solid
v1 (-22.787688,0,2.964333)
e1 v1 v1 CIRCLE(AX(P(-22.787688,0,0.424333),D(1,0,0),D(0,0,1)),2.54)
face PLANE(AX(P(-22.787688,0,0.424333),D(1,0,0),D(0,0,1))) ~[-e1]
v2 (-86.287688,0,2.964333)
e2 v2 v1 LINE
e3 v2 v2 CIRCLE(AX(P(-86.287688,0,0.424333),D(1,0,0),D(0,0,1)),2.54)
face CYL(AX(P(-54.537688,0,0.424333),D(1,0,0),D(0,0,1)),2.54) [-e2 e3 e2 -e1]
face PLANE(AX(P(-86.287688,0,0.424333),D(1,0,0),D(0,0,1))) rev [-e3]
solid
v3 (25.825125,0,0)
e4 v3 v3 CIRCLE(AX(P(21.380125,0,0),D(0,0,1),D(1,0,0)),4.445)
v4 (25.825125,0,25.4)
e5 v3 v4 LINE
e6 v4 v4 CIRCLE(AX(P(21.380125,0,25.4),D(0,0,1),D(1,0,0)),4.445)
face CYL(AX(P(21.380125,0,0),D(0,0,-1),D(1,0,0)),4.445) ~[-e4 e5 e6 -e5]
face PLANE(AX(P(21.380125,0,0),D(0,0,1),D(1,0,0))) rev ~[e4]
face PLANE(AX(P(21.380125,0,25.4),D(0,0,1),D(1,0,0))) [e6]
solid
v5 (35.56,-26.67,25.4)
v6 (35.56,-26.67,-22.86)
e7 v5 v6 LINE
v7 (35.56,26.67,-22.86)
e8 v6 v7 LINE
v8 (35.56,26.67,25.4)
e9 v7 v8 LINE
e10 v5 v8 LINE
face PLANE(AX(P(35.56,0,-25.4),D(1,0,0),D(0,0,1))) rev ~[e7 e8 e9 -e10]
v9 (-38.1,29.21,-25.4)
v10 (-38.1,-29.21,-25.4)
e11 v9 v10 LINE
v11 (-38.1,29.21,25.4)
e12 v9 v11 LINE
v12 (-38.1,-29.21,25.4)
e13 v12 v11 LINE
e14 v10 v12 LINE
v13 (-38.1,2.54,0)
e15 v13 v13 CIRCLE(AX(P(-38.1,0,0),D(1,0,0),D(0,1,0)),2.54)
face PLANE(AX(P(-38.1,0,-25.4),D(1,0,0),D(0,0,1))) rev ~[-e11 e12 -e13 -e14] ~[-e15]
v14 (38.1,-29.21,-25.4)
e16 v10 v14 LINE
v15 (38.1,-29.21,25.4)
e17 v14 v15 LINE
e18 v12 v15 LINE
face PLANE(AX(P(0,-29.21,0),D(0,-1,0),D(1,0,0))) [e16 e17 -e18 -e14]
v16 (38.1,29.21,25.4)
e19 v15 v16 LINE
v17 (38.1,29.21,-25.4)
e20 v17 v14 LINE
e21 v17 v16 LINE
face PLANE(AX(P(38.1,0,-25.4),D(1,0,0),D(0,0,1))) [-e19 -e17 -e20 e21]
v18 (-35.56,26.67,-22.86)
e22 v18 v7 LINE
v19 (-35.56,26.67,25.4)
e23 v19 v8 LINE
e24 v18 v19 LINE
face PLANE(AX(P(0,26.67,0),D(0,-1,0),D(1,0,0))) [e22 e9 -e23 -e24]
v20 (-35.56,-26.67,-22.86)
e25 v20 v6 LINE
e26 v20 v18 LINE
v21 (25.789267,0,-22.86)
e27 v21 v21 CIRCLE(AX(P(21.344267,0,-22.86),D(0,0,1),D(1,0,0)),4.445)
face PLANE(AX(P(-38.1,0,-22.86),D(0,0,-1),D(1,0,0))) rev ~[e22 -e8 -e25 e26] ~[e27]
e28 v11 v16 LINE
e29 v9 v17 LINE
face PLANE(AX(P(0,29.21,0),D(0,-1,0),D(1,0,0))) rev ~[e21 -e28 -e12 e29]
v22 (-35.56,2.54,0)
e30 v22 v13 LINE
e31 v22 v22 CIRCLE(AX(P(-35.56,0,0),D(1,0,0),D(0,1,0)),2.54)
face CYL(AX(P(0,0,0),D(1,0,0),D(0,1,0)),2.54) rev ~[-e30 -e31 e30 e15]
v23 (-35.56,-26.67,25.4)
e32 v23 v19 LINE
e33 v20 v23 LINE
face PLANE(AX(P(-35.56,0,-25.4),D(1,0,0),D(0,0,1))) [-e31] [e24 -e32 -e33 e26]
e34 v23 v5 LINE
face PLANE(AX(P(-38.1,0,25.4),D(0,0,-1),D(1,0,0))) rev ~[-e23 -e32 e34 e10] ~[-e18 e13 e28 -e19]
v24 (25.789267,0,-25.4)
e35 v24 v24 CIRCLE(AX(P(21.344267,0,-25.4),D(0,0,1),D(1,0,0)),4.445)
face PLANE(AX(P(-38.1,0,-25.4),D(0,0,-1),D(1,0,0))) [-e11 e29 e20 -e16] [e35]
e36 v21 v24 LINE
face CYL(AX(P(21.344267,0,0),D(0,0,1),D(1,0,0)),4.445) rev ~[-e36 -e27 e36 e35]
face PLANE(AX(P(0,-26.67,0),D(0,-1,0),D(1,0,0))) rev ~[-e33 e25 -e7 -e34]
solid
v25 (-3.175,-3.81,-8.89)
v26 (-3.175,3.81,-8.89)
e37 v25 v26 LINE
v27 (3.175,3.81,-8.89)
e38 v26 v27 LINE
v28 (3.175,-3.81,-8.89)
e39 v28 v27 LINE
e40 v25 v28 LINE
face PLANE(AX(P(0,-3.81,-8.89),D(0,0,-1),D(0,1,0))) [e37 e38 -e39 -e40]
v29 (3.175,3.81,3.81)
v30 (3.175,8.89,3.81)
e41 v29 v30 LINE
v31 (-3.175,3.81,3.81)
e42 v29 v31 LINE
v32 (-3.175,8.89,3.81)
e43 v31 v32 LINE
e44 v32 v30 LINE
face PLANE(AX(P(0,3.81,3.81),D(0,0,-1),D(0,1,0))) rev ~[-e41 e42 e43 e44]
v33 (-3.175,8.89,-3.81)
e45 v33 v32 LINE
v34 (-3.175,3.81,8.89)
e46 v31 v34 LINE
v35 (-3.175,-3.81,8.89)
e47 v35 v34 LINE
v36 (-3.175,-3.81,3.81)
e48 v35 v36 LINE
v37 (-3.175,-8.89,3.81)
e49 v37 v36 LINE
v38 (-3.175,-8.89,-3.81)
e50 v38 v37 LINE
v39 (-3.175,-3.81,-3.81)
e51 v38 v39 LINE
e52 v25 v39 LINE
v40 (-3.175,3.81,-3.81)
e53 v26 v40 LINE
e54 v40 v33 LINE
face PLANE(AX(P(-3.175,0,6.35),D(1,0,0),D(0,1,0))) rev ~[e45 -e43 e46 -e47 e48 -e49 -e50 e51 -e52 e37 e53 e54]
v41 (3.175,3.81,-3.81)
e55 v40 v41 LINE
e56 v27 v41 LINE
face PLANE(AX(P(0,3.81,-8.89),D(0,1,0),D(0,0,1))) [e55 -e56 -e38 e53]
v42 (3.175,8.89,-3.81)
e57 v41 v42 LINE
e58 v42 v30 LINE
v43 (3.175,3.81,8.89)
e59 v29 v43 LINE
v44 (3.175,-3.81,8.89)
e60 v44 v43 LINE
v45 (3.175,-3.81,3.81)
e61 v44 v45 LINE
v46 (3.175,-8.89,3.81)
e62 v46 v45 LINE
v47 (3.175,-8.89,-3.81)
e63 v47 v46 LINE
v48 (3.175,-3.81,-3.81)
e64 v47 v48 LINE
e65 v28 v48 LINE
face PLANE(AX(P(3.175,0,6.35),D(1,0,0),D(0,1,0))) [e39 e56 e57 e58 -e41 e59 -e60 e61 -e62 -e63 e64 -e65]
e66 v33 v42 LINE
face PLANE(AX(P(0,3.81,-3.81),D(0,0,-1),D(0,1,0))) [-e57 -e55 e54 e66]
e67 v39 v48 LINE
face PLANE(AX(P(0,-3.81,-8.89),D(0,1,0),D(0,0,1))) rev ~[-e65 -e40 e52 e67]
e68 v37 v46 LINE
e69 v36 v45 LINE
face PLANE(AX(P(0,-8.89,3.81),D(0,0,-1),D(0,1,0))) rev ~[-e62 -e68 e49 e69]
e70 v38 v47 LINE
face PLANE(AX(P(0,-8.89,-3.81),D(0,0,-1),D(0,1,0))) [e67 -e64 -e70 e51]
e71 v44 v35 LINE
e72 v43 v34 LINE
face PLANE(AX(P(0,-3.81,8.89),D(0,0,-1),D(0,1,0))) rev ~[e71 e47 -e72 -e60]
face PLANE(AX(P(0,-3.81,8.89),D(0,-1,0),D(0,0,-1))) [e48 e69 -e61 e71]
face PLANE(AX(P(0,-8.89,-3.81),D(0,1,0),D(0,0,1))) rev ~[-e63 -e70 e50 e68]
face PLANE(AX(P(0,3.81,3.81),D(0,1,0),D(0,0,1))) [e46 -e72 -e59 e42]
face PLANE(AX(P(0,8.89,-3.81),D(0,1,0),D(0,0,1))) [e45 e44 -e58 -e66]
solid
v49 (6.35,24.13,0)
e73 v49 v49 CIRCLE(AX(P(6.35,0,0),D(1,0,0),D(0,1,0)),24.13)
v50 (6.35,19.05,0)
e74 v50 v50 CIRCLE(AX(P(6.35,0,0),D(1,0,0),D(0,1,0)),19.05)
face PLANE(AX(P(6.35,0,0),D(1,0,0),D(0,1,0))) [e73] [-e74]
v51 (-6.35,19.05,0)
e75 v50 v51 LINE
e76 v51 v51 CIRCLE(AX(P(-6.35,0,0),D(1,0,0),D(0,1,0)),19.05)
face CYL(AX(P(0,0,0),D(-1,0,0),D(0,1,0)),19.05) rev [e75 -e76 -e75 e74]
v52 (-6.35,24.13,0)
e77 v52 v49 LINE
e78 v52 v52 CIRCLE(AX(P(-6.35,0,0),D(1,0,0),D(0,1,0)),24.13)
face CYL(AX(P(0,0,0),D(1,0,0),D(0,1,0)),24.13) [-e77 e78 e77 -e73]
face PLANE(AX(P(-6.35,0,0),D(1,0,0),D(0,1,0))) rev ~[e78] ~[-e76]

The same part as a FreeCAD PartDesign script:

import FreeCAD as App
import Part
import Sketcher
Q = App.Units.Quantity


def faces_at(feature, points):
    """Names of the faces that lie closest to the given points."""
    faces = feature.Shape.Faces
    near = lambda p: min(range(len(faces)), key=lambda i: faces[i].distToShape(Part.Vertex(*p))[0])
    return sorted({f"Face{near(p) + 1}" for p in points})

doc = App.newDocument("Part")
params = doc.addObject("Spreadsheet::Sheet", "Params")
for row, (alias, value) in enumerate([
    ("sketch1_width", "3 in"),
    ("sketch1_height", "2 in"),
    ("pad1_length", "2.3 in"),
    ("thickness_wall", "0.1 in"),
    ("sketch2_diameter", "0.2 in"),
    ("sketch3_diameter", "0.35 in"),
    ("pocket2_length", "1.64 in"),
    ("sketch4_width", "2.5 in"),
    ("sketch4_height", "0.1 in"),
    ("revolution_angle", "360 deg"),
    ("sketch5_width", "0.2 in"),
    ("sketch5_width2", "0.3 in"),
    ("pad2_length", "0.25 in"),
    ("sketch6_diameter", "1.9 in"),
    ("sketch6_diameter2", "1.5 in"),
    ("pad3_length", "0.5 in"),
    ("sketch7_diameter", "0.35 in"),
    ("pad4_length", "1 in"),
], start=1):
    params.set(f"A{row}", alias)
    params.set(f"B{row}", "=" + value)
    params.setAlias(f"B{row}", alias)

body = doc.addObject("PartDesign::Body", "Body")

sketch1 = body.newObject("Sketcher::SketchObject", "Sketch")
sketch1.AttachmentSupport = (doc.getObject("XZ_Plane"), [""])
sketch1.MapMode = "FlatFace"
sketch1.addGeometry([
    Part.LineSegment(App.Vector(-38, 25, 0), App.Vector(-38, -25, 0)),
    Part.LineSegment(App.Vector(-38, -25, 0), App.Vector(38, -25, 0)),
    Part.LineSegment(App.Vector(38, -25, 0), App.Vector(38, 25, 0)),
    Part.LineSegment(App.Vector(38, 25, 0), App.Vector(-38, 25, 0)),
], False)
sketch1.addConstraint([
    Sketcher.Constraint("Coincident", 0, 2, 1, 1),
    Sketcher.Constraint("Coincident", 1, 2, 2, 1),
    Sketcher.Constraint("Coincident", 2, 2, 3, 1),
    Sketcher.Constraint("Coincident", 3, 2, 0, 1),
    Sketcher.Constraint("Vertical", 0),
    Sketcher.Constraint("Horizontal", 1),
    Sketcher.Constraint("Vertical", 2),
    Sketcher.Constraint("Horizontal", 3),
    Sketcher.Constraint("Symmetric", 0, 2, 2, 2, -1, 1),
    Sketcher.Constraint("DistanceX", 1, 1, 1, 2, Q("3 in")),
    Sketcher.Constraint("DistanceY", 0, 2, 0, 1, Q("2 in")),
])
sketch1.setExpression("Constraints[9]", "Params.sketch1_width")
sketch1.setExpression("Constraints[10]", "Params.sketch1_height")
pad1 = body.newObject("PartDesign::Pad", "Pad")
pad1.Profile = sketch1
pad1.setExpression("Length", "Params.pad1_length")
pad1.Midplane = True
doc.recompute()

thickness = body.newObject("PartDesign::Thickness", "Thickness")
thickness.Base = (pad1, faces_at(pad1, [(0, 0, 25.4)]))
thickness.setExpression("Value", "Params.thickness_wall")
thickness.Reversed = True
thickness.Join = "Arc"

sketch2 = body.newObject("Sketcher::SketchObject", "Sketch001")
sketch2.AttachmentSupport = (doc.getObject("YZ_Plane"), [""])
sketch2.MapMode = "FlatFace"
sketch2.addGeometry(Part.Circle(App.Vector(0, 0, 0), App.Vector(0, 0, 1), 2.5), False)
sketch2.addConstraint([
    Sketcher.Constraint("Coincident", 0, 3, -1, 1),
    Sketcher.Constraint("Diameter", 0, Q("0.2 in")),
])
sketch2.setExpression("Constraints[1]", "Params.sketch2_diameter")
pocket1 = body.newObject("PartDesign::Pocket", "Pocket")
pocket1.Profile = sketch2
pocket1.Type = "ThroughAll"

sketch3 = body.newObject("Sketcher::SketchObject", "Sketch002")
sketch3.AttachmentSupport = (doc.getObject("XY_Plane"), [""])
sketch3.MapMode = "FlatFace"
sketch3.addGeometry(Part.Circle(App.Vector(21.3, 0, 0), App.Vector(0, 0, 1), 4.4), False)
sketch3.addConstraint([
    Sketcher.Constraint("PointOnObject", 0, 3, -1),
    Sketcher.Constraint("Diameter", 0, Q("0.35 in")),
    Sketcher.Constraint("DistanceX", -1, 1, 0, 3, Q("21.344267 mm")),
])
sketch3.setExpression("Constraints[1]", "Params.sketch3_diameter")
pocket2 = body.newObject("PartDesign::Pocket", "Pocket001")
pocket2.Profile = sketch3
pocket2.setExpression("Length", "Params.pocket2_length")
body2 = doc.addObject("PartDesign::Body", "Body001")

sketch4 = body2.newObject("Sketcher::SketchObject", "Sketch003")
sketch4.AttachmentSupport = (doc.getObject("XZ_Plane001"), [""])
sketch4.MapMode = "FlatFace"
sketch4.addGeometry([
    Part.LineSegment(App.Vector(-86.3, 3, 0), App.Vector(-86.3, 0.4, 0)),
    Part.LineSegment(App.Vector(-86.3, 0.4, 0), App.Vector(-22.8, 0.4, 0)),
    Part.LineSegment(App.Vector(-22.8, 0.4, 0), App.Vector(-22.8, 3, 0)),
    Part.LineSegment(App.Vector(-22.8, 3, 0), App.Vector(-86.3, 3, 0)),
], False)
sketch4.addGeometry(Part.LineSegment(App.Vector(-86.3, 0.4, 0), App.Vector(-22.8, 0.4, 0)), True)
sketch4.addConstraint([
    Sketcher.Constraint("Coincident", 0, 2, 1, 1),
    Sketcher.Constraint("Coincident", 1, 2, 2, 1),
    Sketcher.Constraint("Coincident", 2, 2, 3, 1),
    Sketcher.Constraint("Coincident", 3, 2, 0, 1),
    Sketcher.Constraint("Vertical", 0),
    Sketcher.Constraint("Horizontal", 1),
    Sketcher.Constraint("Vertical", 2),
    Sketcher.Constraint("Horizontal", 3),
    Sketcher.Constraint("Horizontal", 4),
    Sketcher.Constraint("Coincident", 4, 1, 0, 2),
    Sketcher.Constraint("Vertical", 2, 2, 4, 2),
    Sketcher.Constraint("DistanceX", 1, 1, 1, 2, Q("2.5 in")),
    Sketcher.Constraint("DistanceY", 0, 2, 0, 1, Q("0.1 in")),
    Sketcher.Constraint("DistanceX", 0, 2, -1, 1, Q("86.287688 mm")),
    Sketcher.Constraint("DistanceY", -1, 1, 0, 2, Q("0.424333 mm")),
])
sketch4.setExpression("Constraints[11]", "Params.sketch4_width")
sketch4.setExpression("Constraints[12]", "Params.sketch4_height")
revolution = body2.newObject("PartDesign::Revolution", "Revolution")
revolution.Profile = sketch4
revolution.ReferenceAxis = (sketch4, ["Axis0"])
revolution.setExpression("Angle", "Params.revolution_angle")
body3 = doc.addObject("PartDesign::Body", "Body002")

sketch5 = body3.newObject("Sketcher::SketchObject", "Sketch004")
sketch5.AttachmentSupport = (doc.getObject("YZ_Plane002"), [""])
sketch5.MapMode = "FlatFace"
sketch5.addGeometry([
    Part.LineSegment(App.Vector(-4, 9, 0), App.Vector(-4, 4, 0)),
    Part.LineSegment(App.Vector(-4, 4, 0), App.Vector(-9, 4, 0)),
    Part.LineSegment(App.Vector(-9, 4, 0), App.Vector(-9, -4, 0)),
    Part.LineSegment(App.Vector(-9, -4, 0), App.Vector(-4, -4, 0)),
    Part.LineSegment(App.Vector(-4, -4, 0), App.Vector(-4, -9, 0)),
    Part.LineSegment(App.Vector(-4, -9, 0), App.Vector(4, -9, 0)),
    Part.LineSegment(App.Vector(4, -9, 0), App.Vector(4, -4, 0)),
    Part.LineSegment(App.Vector(4, -4, 0), App.Vector(9, -4, 0)),
    Part.LineSegment(App.Vector(9, -4, 0), App.Vector(9, 4, 0)),
    Part.LineSegment(App.Vector(9, 4, 0), App.Vector(4, 4, 0)),
    Part.LineSegment(App.Vector(4, 4, 0), App.Vector(4, 9, 0)),
    Part.LineSegment(App.Vector(4, 9, 0), App.Vector(-4, 9, 0)),
], False)
sketch5.addConstraint([
    Sketcher.Constraint("Coincident", 0, 2, 1, 1),
    Sketcher.Constraint("Coincident", 1, 2, 2, 1),
    Sketcher.Constraint("Coincident", 2, 2, 3, 1),
    Sketcher.Constraint("Coincident", 3, 2, 4, 1),
    Sketcher.Constraint("Coincident", 4, 2, 5, 1),
    Sketcher.Constraint("Coincident", 5, 2, 6, 1),
    Sketcher.Constraint("Coincident", 6, 2, 7, 1),
    Sketcher.Constraint("Coincident", 7, 2, 8, 1),
    Sketcher.Constraint("Coincident", 8, 2, 9, 1),
    Sketcher.Constraint("Coincident", 9, 2, 10, 1),
    Sketcher.Constraint("Coincident", 10, 2, 11, 1),
    Sketcher.Constraint("Coincident", 11, 2, 0, 1),
    Sketcher.Constraint("Vertical", 0),
    Sketcher.Constraint("Horizontal", 1),
    Sketcher.Constraint("Vertical", 2),
    Sketcher.Constraint("Horizontal", 3),
    Sketcher.Constraint("Vertical", 4),
    Sketcher.Constraint("Horizontal", 5),
    Sketcher.Constraint("Vertical", 6),
    Sketcher.Constraint("Horizontal", 7),
    Sketcher.Constraint("Vertical", 8),
    Sketcher.Constraint("Horizontal", 9),
    Sketcher.Constraint("Vertical", 10),
    Sketcher.Constraint("Horizontal", 11),
    Sketcher.Constraint("Symmetric", 0, 2, 6, 2, -1, 1),
    Sketcher.Constraint("Symmetric", 2, 2, 8, 2, -1, 1),
    Sketcher.Constraint("Symmetric", 4, 2, 10, 2, -1, 1),
    Sketcher.Constraint("Symmetric", 3, 2, 6, 2, -2),
    Sketcher.Constraint("Equal", 9, 0),
    Sketcher.Constraint("Equal", 11, 2),
    Sketcher.Constraint("DistanceX", 1, 2, 1, 1, Q("0.2 in")),
    Sketcher.Constraint("DistanceX", 5, 1, 5, 2, Q("0.3 in")),
])
sketch5.setExpression("Constraints[30]", "Params.sketch5_width")
sketch5.setExpression("Constraints[31]", "Params.sketch5_width2")
pad2 = body3.newObject("PartDesign::Pad", "Pad001")
pad2.Profile = sketch5
pad2.setExpression("Length", "Params.pad2_length")
pad2.Midplane = True
body4 = doc.addObject("PartDesign::Body", "Body003")

sketch6 = body4.newObject("Sketcher::SketchObject", "Sketch005")
sketch6.AttachmentSupport = (doc.getObject("YZ_Plane003"), [""])
sketch6.MapMode = "FlatFace"
sketch6.addGeometry([
    Part.Circle(App.Vector(0, 0, 0), App.Vector(0, 0, 1), 24),
    Part.Circle(App.Vector(0, 0, 0), App.Vector(0, 0, 1), 19),
], False)
sketch6.addConstraint([
    Sketcher.Constraint("Coincident", 0, 3, -1, 1),
    Sketcher.Constraint("Coincident", 1, 3, -1, 1),
    Sketcher.Constraint("Diameter", 0, Q("1.9 in")),
    Sketcher.Constraint("Diameter", 1, Q("1.5 in")),
])
sketch6.setExpression("Constraints[2]", "Params.sketch6_diameter")
sketch6.setExpression("Constraints[3]", "Params.sketch6_diameter2")
pad3 = body4.newObject("PartDesign::Pad", "Pad002")
pad3.Profile = sketch6
pad3.setExpression("Length", "Params.pad3_length")
pad3.Midplane = True
body5 = doc.addObject("PartDesign::Body", "Body004")

sketch7 = body5.newObject("Sketcher::SketchObject", "Sketch006")
sketch7.AttachmentSupport = (doc.getObject("XY_Plane004"), [""])
sketch7.MapMode = "FlatFace"
sketch7.addGeometry(Part.Circle(App.Vector(21.4, 0, 0), App.Vector(0, 0, 1), 4.4), False)
sketch7.addConstraint([
    Sketcher.Constraint("PointOnObject", 0, 3, -1),
    Sketcher.Constraint("Diameter", 0, Q("0.35 in")),
    Sketcher.Constraint("DistanceX", -1, 1, 0, 3, Q("21.380125 mm")),
])
sketch7.setExpression("Constraints[1]", "Params.sketch7_diameter")
pad4 = body5.newObject("PartDesign::Pad", "Pad003")
pad4.Profile = sketch7
pad4.setExpression("Length", "Params.pad4_length")

doc.recompute()
